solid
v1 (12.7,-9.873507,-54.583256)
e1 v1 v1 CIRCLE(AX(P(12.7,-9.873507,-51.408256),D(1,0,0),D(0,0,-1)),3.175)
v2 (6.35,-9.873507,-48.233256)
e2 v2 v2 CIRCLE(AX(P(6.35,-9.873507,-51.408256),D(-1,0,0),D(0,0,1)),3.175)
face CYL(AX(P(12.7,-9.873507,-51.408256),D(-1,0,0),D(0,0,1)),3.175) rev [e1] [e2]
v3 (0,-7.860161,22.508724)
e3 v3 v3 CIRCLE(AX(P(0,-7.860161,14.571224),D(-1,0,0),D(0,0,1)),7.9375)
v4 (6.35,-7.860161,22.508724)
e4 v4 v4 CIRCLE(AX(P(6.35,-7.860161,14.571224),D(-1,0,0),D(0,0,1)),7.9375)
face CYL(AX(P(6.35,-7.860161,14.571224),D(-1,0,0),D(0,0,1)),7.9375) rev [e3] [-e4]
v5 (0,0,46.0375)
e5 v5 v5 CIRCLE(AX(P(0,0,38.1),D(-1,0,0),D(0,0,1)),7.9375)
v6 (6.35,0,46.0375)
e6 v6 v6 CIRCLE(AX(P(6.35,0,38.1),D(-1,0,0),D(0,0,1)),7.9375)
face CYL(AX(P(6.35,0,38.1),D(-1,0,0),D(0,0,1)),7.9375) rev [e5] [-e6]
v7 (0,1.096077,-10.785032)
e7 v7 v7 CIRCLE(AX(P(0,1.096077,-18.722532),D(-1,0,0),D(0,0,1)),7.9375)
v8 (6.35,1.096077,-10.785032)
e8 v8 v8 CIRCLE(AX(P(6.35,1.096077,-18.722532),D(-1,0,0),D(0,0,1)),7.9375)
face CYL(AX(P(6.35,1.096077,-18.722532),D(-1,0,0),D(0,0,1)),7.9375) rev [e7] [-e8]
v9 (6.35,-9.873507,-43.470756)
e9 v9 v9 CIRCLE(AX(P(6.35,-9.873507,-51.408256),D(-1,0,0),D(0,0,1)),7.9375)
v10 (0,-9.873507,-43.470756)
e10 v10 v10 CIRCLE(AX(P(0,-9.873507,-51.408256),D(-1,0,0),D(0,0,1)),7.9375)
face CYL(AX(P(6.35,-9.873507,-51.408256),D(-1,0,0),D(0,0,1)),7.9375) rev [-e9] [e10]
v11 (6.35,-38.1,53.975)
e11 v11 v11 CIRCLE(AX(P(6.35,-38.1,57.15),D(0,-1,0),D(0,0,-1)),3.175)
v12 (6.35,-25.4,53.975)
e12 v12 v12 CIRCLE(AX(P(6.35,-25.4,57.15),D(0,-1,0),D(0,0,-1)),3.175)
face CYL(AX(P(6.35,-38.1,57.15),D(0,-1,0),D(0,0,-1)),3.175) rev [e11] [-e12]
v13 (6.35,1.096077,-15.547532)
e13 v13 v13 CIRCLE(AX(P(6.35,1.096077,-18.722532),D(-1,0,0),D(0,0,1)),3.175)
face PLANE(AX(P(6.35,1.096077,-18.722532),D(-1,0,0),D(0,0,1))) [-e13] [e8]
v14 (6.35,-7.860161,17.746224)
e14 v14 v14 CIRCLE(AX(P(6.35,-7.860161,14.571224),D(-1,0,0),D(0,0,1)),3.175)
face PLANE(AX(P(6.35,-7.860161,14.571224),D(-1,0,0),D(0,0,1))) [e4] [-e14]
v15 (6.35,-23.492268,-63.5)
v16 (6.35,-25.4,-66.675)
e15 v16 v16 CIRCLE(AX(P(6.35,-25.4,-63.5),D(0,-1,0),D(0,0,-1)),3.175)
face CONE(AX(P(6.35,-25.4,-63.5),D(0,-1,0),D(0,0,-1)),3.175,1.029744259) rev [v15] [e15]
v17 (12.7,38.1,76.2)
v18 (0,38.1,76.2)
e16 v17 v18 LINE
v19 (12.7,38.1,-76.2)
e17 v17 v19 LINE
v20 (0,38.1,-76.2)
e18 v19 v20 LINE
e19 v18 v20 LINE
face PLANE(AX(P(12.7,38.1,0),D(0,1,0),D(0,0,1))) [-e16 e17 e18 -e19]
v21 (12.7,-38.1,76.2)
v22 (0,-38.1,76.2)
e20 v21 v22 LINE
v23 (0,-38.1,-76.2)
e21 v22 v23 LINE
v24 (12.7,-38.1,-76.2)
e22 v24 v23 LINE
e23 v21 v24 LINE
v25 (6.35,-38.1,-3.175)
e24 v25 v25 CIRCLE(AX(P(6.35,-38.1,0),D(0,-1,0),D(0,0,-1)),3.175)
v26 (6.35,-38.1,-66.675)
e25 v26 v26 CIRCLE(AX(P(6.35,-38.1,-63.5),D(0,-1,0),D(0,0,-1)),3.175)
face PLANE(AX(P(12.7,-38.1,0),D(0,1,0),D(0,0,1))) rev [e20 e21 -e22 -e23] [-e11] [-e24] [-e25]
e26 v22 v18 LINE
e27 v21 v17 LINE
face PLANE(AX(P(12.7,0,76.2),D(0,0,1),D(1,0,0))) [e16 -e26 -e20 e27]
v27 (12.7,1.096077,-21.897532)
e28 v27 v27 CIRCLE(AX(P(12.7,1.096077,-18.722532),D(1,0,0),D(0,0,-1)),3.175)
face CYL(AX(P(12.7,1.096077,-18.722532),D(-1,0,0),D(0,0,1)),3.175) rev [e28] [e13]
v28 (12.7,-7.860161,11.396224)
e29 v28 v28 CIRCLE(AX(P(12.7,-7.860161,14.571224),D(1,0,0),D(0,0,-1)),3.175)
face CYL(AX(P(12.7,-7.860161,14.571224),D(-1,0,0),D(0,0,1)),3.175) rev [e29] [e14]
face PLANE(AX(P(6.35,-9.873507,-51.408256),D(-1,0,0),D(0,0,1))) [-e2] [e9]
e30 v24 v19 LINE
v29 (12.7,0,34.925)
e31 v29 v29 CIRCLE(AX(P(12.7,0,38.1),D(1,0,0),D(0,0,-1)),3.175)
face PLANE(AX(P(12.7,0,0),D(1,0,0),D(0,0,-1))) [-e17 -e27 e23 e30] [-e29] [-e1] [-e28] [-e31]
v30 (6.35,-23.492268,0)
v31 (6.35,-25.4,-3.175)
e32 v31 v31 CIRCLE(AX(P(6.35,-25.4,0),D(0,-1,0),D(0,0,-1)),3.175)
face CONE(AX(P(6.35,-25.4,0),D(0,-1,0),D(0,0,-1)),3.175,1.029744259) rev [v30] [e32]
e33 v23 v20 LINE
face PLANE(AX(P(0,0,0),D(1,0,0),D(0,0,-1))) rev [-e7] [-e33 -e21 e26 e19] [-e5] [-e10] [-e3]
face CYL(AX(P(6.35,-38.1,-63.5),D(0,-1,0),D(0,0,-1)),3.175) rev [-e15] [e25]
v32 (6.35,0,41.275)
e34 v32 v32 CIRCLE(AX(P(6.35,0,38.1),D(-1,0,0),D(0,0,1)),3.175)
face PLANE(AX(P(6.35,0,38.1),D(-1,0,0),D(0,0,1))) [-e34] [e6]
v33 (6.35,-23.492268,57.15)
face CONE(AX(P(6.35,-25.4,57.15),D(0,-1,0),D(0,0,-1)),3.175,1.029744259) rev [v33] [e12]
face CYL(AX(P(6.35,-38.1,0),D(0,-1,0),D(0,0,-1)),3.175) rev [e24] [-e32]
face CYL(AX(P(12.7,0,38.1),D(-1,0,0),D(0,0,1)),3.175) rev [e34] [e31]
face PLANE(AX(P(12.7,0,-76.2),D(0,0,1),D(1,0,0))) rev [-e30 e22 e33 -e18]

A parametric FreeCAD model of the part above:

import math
import FreeCAD as App
import Part
import Sketcher
Q = App.Units.Quantity

doc = App.newDocument("Part")
body = doc.addObject("PartDesign::Body", "Body")

sketch1 = doc.addObject("Sketcher::SketchObject", "Sketch")
body.addObject(sketch1)
sketch1.AttachmentSupport = (doc.YZ_Plane, [""])
sketch1.MapMode = "FlatFace"
sketch1.addGeometry([
    Part.LineSegment(App.Vector(38.1, 76.2, 0), App.Vector(-38.1, 76.2, 0)),
    Part.LineSegment(App.Vector(-38.1, 76.2, 0), App.Vector(-38.1, -76.2, 0)),
    Part.LineSegment(App.Vector(-38.1, -76.2, 0), App.Vector(38.1, -76.2, 0)),
    Part.LineSegment(App.Vector(38.1, -76.2, 0), App.Vector(38.1, 76.2, 0)),
    Part.Circle(App.Vector(0, 38.1, 0), App.Vector(0, 0, 1), 3.2),
    Part.ArcOfCircle(Part.Circle(App.Vector(1.1, -18.7, 0), App.Vector(0, 0, 1), 3.2), math.radians(-90), math.radians(110)),
    Part.ArcOfCircle(Part.Circle(App.Vector(1.1, -18.7, 0), App.Vector(0, 0, 1), 3.2), math.radians(-110), math.radians(-90)),
    Part.ArcOfCircle(Part.Circle(App.Vector(1.1, -18.7, 0), App.Vector(0, 0, 1), 3.2), math.radians(110), math.radians(250)),
    Part.Circle(App.Vector(-7.9, 14.6, 0), App.Vector(0, 0, 1), 3.2),
    Part.Circle(App.Vector(-9.9, -51.4, 0), App.Vector(0, 0, 1), 3.2),
], False)
sketch1.addConstraint([
    Sketcher.Constraint("Coincident", 0, 2, 1, 1),
    Sketcher.Constraint("Coincident", 1, 2, 2, 1),
    Sketcher.Constraint("Coincident", 2, 2, 3, 1),
    Sketcher.Constraint("Coincident", 3, 2, 0, 1),
    Sketcher.Constraint("Tangent", 5, 1, 6, 2),
    Sketcher.Constraint("Tangent", 6, 1, 7, 2),
    Sketcher.Constraint("Tangent", 7, 1, 5, 2),
    Sketcher.Constraint("Horizontal", 0),
    Sketcher.Constraint("Vertical", 1),
    Sketcher.Constraint("Horizontal", 2),
    Sketcher.Constraint("Vertical", 3),
    Sketcher.Constraint("Equal", 4, 5),
    Sketcher.Constraint("Equal", 7, 8),
    Sketcher.Constraint("Equal", 8, 9),
    Sketcher.Constraint("Symmetric", 0, 2, 2, 2, -1, 1),
    Sketcher.Constraint("PointOnObject", 4, 3, -2),
    Sketcher.Constraint("PointOnObject", 6, 1, -2),
    Sketcher.Constraint("PointOnObject", 7, 1, -2),
    Sketcher.Constraint("Vertical", 7, 3, 5, 1),
    Sketcher.Constraint("Diameter", 4, Q("0.25 in")),
    Sketcher.Constraint("DistanceX", 0, 2, 0, 1, Q("3 in")),
    Sketcher.Constraint("DistanceY", 1, 2, 1, 1, Q("6 in")),
    Sketcher.Constraint("DistanceY", -1, 1, 4, 3, Q("1.5 in")),
    Sketcher.Constraint("DistanceY", 5, 3, -1, 1, 18.722532),
    Sketcher.Constraint("DistanceX", 8, 3, -1, 1, 7.860161),
    Sketcher.Constraint("DistanceX", 8, 3, 6, 3, 8.956238),
    Sketcher.Constraint("DistanceY", 9, 3, 8, 3, 65.97948),
    Sketcher.Constraint("DistanceY", 9, 3, 6, 1, 29.705919),
    Sketcher.Constraint("DistanceX", 9, 3, -1, 1, 9.873507),
])
pad1 = doc.addObject("PartDesign::Pad", "Pad")
body.addObject(pad1)
pad1.Profile = sketch1
pad1.Length = Q("0.5 in")

sketch2 = doc.addObject("Sketcher::SketchObject", "Sketch001")
body.addObject(sketch2)
sketch2.AttachmentSupport = (doc.YZ_Plane, [""])
sketch2.MapMode = "FlatFace"
sketch2.addGeometry([
    Part.Circle(App.Vector(0, 38, 0), App.Vector(0, 0, 1), 8),
    Part.Circle(App.Vector(-8, 15, 0), App.Vector(0, 0, 1), 8),
    Part.Circle(App.Vector(1, -19, 0), App.Vector(0, 0, 1), 8),
    Part.Circle(App.Vector(-10, -51, 0), App.Vector(0, 0, 1), 8),
], False)
sketch2.addConstraint([
    Sketcher.Constraint("Equal", 0, 1),
    Sketcher.Constraint("Equal", 1, 2),
    Sketcher.Constraint("Equal", 2, 3),
    Sketcher.Constraint("PointOnObject", 0, 3, -2),
    Sketcher.Constraint("Diameter", 0, Q("0.625 in")),
    Sketcher.Constraint("DistanceY", -1, 1, 0, 3, Q("1.5 in")),
    Sketcher.Constraint("DistanceX", 1, 3, -1, 1, 7.860161),
    Sketcher.Constraint("DistanceY", 2, 3, -1, 1, 18.722532),
    Sketcher.Constraint("DistanceX", 1, 3, 2, 3, 8.956238),
    Sketcher.Constraint("DistanceY", 3, 3, 1, 3, 65.97948),
    Sketcher.Constraint("DistanceY", -1, 1, 1, 3, 14.571224),
    Sketcher.Constraint("DistanceX", 3, 3, -1, 1, 9.873507),
])
pocket1 = doc.addObject("PartDesign::Pocket", "Pocket")
body.addObject(pocket1)
pocket1.Profile = sketch2
pocket1.Length = Q("0.25 in")
pocket1.Reversed = True

sketch3 = doc.addObject("Sketcher::SketchObject", "Sketch002")
body.addObject(sketch3)
sketch3.AttachmentSupport = (doc.XZ_Plane, [""])
sketch3.MapMode = "FlatFace"
sketch3.AttachmentOffset = App.Placement(App.Vector(0, 0, 1.5 * 25.4), App.Rotation())
sketch3.addGeometry([
    Part.Circle(App.Vector(6.3, -63.5, 0), App.Vector(0, 0, 1), 3.2),
    Part.Circle(App.Vector(6.3, 0, 0), App.Vector(0, 0, 1), 3.2),
    Part.Circle(App.Vector(6.3, 57.1, 0), App.Vector(0, 0, 1), 3.2),
], False)
sketch3.addConstraint([
    Sketcher.Constraint("Equal", 0, 1),
    Sketcher.Constraint("Equal", 1, 2),
    Sketcher.Constraint("PointOnObject", 1, 3, -1),
    Sketcher.Constraint("Vertical", 0, 3, 1, 3),
    Sketcher.Constraint("Vertical", 1, 3, 2, 3),
    Sketcher.Constraint("Diameter", 0, Q("0.25 in")),
    Sketcher.Constraint("DistanceY", 0, 3, -1, 1, Q("2.5 in")),
    Sketcher.Constraint("DistanceX", -1, 1, 0, 3, Q("0.25 in")),
    Sketcher.Constraint("DistanceY", -1, 1, 2, 3, Q("2.25 in")),
])
doc.recompute()
hole = doc.addObject("PartDesign::Hole", "Hole")
body.addObject(hole)
hole.Profile = sketch3
hole.ThreadType = "None"
hole.Diameter = Q("0.25 in")
hole.DepthType = "Dimension"
hole.Depth = Q("0.5 in")
hole.DrillPoint = "Angled"
hole.DrillPointAngle = 118

doc.recompute()
